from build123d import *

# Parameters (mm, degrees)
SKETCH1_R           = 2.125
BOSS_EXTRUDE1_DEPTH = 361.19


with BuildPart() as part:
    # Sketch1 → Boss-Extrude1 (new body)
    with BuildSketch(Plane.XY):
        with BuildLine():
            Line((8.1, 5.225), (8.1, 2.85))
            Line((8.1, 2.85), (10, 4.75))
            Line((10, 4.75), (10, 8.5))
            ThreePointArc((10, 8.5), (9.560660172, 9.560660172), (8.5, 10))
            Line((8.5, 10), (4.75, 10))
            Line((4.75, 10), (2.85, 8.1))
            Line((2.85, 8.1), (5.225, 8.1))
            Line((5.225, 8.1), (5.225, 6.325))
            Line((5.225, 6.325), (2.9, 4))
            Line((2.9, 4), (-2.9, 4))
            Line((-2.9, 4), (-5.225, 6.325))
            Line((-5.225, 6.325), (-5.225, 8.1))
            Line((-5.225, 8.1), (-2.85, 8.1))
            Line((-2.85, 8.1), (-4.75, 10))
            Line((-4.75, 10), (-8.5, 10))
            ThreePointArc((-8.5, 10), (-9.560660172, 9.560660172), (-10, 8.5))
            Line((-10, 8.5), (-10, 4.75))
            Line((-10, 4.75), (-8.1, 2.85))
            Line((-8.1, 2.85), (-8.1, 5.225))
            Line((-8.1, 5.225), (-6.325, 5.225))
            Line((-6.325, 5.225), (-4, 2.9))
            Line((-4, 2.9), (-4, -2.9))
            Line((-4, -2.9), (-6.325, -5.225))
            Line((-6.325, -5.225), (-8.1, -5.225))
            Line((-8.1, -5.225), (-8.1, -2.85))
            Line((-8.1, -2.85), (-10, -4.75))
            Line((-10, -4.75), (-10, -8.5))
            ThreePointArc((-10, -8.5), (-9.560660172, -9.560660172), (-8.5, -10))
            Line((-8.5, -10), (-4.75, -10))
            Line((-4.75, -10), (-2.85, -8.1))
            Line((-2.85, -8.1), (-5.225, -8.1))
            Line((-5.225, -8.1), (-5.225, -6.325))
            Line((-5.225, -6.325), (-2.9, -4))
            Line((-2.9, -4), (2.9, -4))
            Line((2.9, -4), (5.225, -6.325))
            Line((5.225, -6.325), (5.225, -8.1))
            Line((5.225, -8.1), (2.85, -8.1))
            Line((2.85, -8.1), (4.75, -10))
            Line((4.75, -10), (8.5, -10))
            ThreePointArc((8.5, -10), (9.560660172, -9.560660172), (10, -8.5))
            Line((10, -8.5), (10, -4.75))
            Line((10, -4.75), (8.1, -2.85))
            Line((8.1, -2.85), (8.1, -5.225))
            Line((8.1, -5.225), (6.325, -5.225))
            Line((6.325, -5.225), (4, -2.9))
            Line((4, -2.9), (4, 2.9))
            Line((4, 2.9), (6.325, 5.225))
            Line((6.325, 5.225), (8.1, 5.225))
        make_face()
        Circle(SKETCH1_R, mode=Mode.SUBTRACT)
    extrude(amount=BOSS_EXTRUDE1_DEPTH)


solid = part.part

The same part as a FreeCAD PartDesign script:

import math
import FreeCAD as App
import Part
import Sketcher

V = App.Vector
Q = App.Units.Quantity

doc = App.newDocument("Part")
body = doc.addObject("PartDesign::Body", "Body")

sketch1 = doc.addObject("Sketcher::SketchObject", "Sketch")
body.addObject(sketch1)
sketch1.AttachmentSupport = (doc.XY_Plane, [""])
sketch1.MapMode = "FlatFace"
sketch1.addGeometry(Part.LineSegment(V(8.1, 5.2, 0), V(8.1, 2.9, 0)), False)
sketch1.addGeometry(Part.LineSegment(V(8.1, 2.9, 0), V(10, 4.8, 0)), False)
sketch1.addGeometry(Part.LineSegment(V(10, 4.8, 0), V(10, 8.5, 0)), False)
sketch1.addGeometry(Part.ArcOfCircle(Part.Circle(V(8.5, 8.5, 0), V(0, 0, 1), 1.5), math.radians(0), math.radians(90)), False)
sketch1.addGeometry(Part.LineSegment(V(8.5, 10, 0), V(4.8, 10, 0)), False)
sketch1.addGeometry(Part.LineSegment(V(4.8, 10, 0), V(2.9, 8.1, 0)), False)
sketch1.addGeometry(Part.LineSegment(V(2.9, 8.1, 0), V(5.2, 8.1, 0)), False)
sketch1.addGeometry(Part.LineSegment(V(5.2, 8.1, 0), V(5.2, 6.3, 0)), False)
sketch1.addGeometry(Part.LineSegment(V(5.2, 6.3, 0), V(2.9, 4, 0)), False)
sketch1.addGeometry(Part.LineSegment(V(2.9, 4, 0), V(-2.9, 4, 0)), False)
sketch1.addGeometry(Part.LineSegment(V(-2.9, 4, 0), V(-5.2, 6.3, 0)), False)
sketch1.addGeometry(Part.LineSegment(V(-5.2, 6.3, 0), V(-5.2, 8.1, 0)), False)
sketch1.addGeometry(Part.LineSegment(V(-5.2, 8.1, 0), V(-2.9, 8.1, 0)), False)
sketch1.addGeometry(Part.LineSegment(V(-2.9, 8.1, 0), V(-4.8, 10, 0)), False)
sketch1.addGeometry(Part.LineSegment(V(-4.8, 10, 0), V(-8.5, 10, 0)), False)
sketch1.addGeometry(Part.ArcOfCircle(Part.Circle(V(-8.5, 8.5, 0), V(0, 0, 1), 1.5), math.radians(90), math.radians(180)), False)
sketch1.addGeometry(Part.LineSegment(V(-10, 8.5, 0), V(-10, 4.8, 0)), False)
sketch1.addGeometry(Part.LineSegment(V(-10, 4.8, 0), V(-8.1, 2.9, 0)), False)
sketch1.addGeometry(Part.LineSegment(V(-8.1, 2.9, 0), V(-8.1, 5.2, 0)), False)
sketch1.addGeometry(Part.LineSegment(V(-8.1, 5.2, 0), V(-6.3, 5.2, 0)), False)
sketch1.addGeometry(Part.LineSegment(V(-6.3, 5.2, 0), V(-4, 2.9, 0)), False)
sketch1.addGeometry(Part.LineSegment(V(-4, 2.9, 0), V(-4, -2.9, 0)), False)
sketch1.addGeometry(Part.LineSegment(V(-4, -2.9, 0), V(-6.3, -5.2, 0)), False)
sketch1.addGeometry(Part.LineSegment(V(-6.3, -5.2, 0), V(-8.1, -5.2, 0)), False)
sketch1.addGeometry(Part.LineSegment(V(-8.1, -5.2, 0), V(-8.1, -2.9, 0)), False)
sketch1.addGeometry(Part.LineSegment(V(-8.1, -2.9, 0), V(-10, -4.8, 0)), False)
sketch1.addGeometry(Part.LineSegment(V(-10, -4.8, 0), V(-10, -8.5, 0)), False)
sketch1.addGeometry(Part.ArcOfCircle(Part.Circle(V(-8.5, -8.5, 0), V(0, 0, 1), 1.5), math.radians(180), math.radians(270)), False)
sketch1.addGeometry(Part.LineSegment(V(-8.5, -10, 0), V(-4.8, -10, 0)), False)
sketch1.addGeometry(Part.LineSegment(V(-4.8, -10, 0), V(-2.9, -8.1, 0)), False)
sketch1.addGeometry(Part.LineSegment(V(-2.9, -8.1, 0), V(-5.2, -8.1, 0)), False)
sketch1.addGeometry(Part.LineSegment(V(-5.2, -8.1, 0), V(-5.2, -6.3, 0)), False)
sketch1.addGeometry(Part.LineSegment(V(-5.2, -6.3, 0), V(-2.9, -4, 0)), False)
sketch1.addGeometry(Part.LineSegment(V(-2.9, -4, 0), V(2.9, -4, 0)), False)
sketch1.addGeometry(Part.LineSegment(V(2.9, -4, 0), V(5.2, -6.3, 0)), False)
sketch1.addGeometry(Part.LineSegment(V(5.2, -6.3, 0), V(5.2, -8.1, 0)), False)
sketch1.addGeometry(Part.LineSegment(V(5.2, -8.1, 0), V(2.9, -8.1, 0)), False)
sketch1.addGeometry(Part.LineSegment(V(2.9, -8.1, 0), V(4.8, -10, 0)), False)
sketch1.addGeometry(Part.LineSegment(V(4.8, -10, 0), V(8.5, -10, 0)), False)
sketch1.addGeometry(Part.ArcOfCircle(Part.Circle(V(8.5, -8.5, 0), V(0, 0, 1), 1.5), math.radians(-90), math.radians(0)), False)
sketch1.addGeometry(Part.LineSegment(V(10, -8.5, 0), V(10, -4.8, 0)), False)
sketch1.addGeometry(Part.LineSegment(V(10, -4.8, 0), V(8.1, -2.9, 0)), False)
sketch1.addGeometry(Part.LineSegment(V(8.1, -2.9, 0), V(8.1, -5.2, 0)), False)
sketch1.addGeometry(Part.LineSegment(V(8.1, -5.2, 0), V(6.3, -5.2, 0)), False)
sketch1.addGeometry(Part.LineSegment(V(6.3, -5.2, 0), V(4, -2.9, 0)), False)
sketch1.addGeometry(Part.LineSegment(V(4, -2.9, 0), V(4, 2.9, 0)), False)
sketch1.addGeometry(Part.LineSegment(V(4, 2.9, 0), V(6.3, 5.2, 0)), False)
sketch1.addGeometry(Part.LineSegment(V(6.3, 5.2, 0), V(8.1, 5.2, 0)), False)
sketch1.addGeometry(Part.Circle(V(0, 0, 0), V(0, 0, 1), 2.1), False)
sketch1.addConstraint(Sketcher.Constraint("Coincident", 0, 2, 1, 1))
sketch1.addConstraint(Sketcher.Constraint("Coincident", 1, 2, 2, 1))
sketch1.addConstraint(Sketcher.Constraint("Tangent", 2, 2, 3, 1))
sketch1.addConstraint(Sketcher.Constraint("Tangent", 3, 2, 4, 1))
sketch1.addConstraint(Sketcher.Constraint("Coincident", 4, 2, 5, 1))
sketch1.addConstraint(Sketcher.Constraint("Coincident", 5, 2, 6, 1))
sketch1.addConstraint(Sketcher.Constraint("Coincident", 6, 2, 7, 1))
sketch1.addConstraint(Sketcher.Constraint("Coincident", 7, 2, 8, 1))
sketch1.addConstraint(Sketcher.Constraint("Coincident", 8, 2, 9, 1))
sketch1.addConstraint(Sketcher.Constraint("Coincident", 9, 2, 10, 1))
sketch1.addConstraint(Sketcher.Constraint("Coincident", 10, 2, 11, 1))
sketch1.addConstraint(Sketcher.Constraint("Coincident", 11, 2, 12, 1))
sketch1.addConstraint(Sketcher.Constraint("Coincident", 12, 2, 13, 1))
sketch1.addConstraint(Sketcher.Constraint("Coincident", 13, 2, 14, 1))
sketch1.addConstraint(Sketcher.Constraint("Tangent", 14, 2, 15, 1))
sketch1.addConstraint(Sketcher.Constraint("Tangent", 15, 2, 16, 1))
sketch1.addConstraint(Sketcher.Constraint("Coincident", 16, 2, 17, 1))
sketch1.addConstraint(Sketcher.Constraint("Coincident", 17, 2, 18, 1))
sketch1.addConstraint(Sketcher.Constraint("Coincident", 18, 2, 19, 1))
sketch1.addConstraint(Sketcher.Constraint("Coincident", 19, 2, 20, 1))
sketch1.addConstraint(Sketcher.Constraint("Coincident", 20, 2, 21, 1))
sketch1.addConstraint(Sketcher.Constraint("Coincident", 21, 2, 22, 1))
sketch1.addConstraint(Sketcher.Constraint("Coincident", 22, 2, 23, 1))
sketch1.addConstraint(Sketcher.Constraint("Coincident", 23, 2, 24, 1))
sketch1.addConstraint(Sketcher.Constraint("Coincident", 24, 2, 25, 1))
sketch1.addConstraint(Sketcher.Constraint("Coincident", 25, 2, 26, 1))
sketch1.addConstraint(Sketcher.Constraint("Tangent", 26, 2, 27, 1))
sketch1.addConstraint(Sketcher.Constraint("Tangent", 27, 2, 28, 1))
sketch1.addConstraint(Sketcher.Constraint("Coincident", 28, 2, 29, 1))
sketch1.addConstraint(Sketcher.Constraint("Coincident", 29, 2, 30, 1))
sketch1.addConstraint(Sketcher.Constraint("Coincident", 30, 2, 31, 1))
sketch1.addConstraint(Sketcher.Constraint("Coincident", 31, 2, 32, 1))
sketch1.addConstraint(Sketcher.Constraint("Coincident", 32, 2, 33, 1))
sketch1.addConstraint(Sketcher.Constraint("Coincident", 33, 2, 34, 1))
sketch1.addConstraint(Sketcher.Constraint("Coincident", 34, 2, 35, 1))
sketch1.addConstraint(Sketcher.Constraint("Coincident", 35, 2, 36, 1))
sketch1.addConstraint(Sketcher.Constraint("Coincident", 36, 2, 37, 1))
sketch1.addConstraint(Sketcher.Constraint("Coincident", 37, 2, 38, 1))
sketch1.addConstraint(Sketcher.Constraint("Tangent", 38, 2, 39, 1))
sketch1.addConstraint(Sketcher.Constraint("Tangent", 39, 2, 40, 1))
sketch1.addConstraint(Sketcher.Constraint("Coincident", 40, 2, 41, 1))
sketch1.addConstraint(Sketcher.Constraint("Coincident", 41, 2, 42, 1))
sketch1.addConstraint(Sketcher.Constraint("Coincident", 42, 2, 43, 1))
sketch1.addConstraint(Sketcher.Constraint("Coincident", 43, 2, 44, 1))
sketch1.addConstraint(Sketcher.Constraint("Coincident", 44, 2, 45, 1))
sketch1.addConstraint(Sketcher.Constraint("Coincident", 45, 2, 46, 1))
sketch1.addConstraint(Sketcher.Constraint("Coincident", 46, 2, 47, 1))
sketch1.addConstraint(Sketcher.Constraint("Coincident", 47, 2, 0, 1))
sketch1.addConstraint(Sketcher.Constraint("Vertical", 0))
sketch1.addConstraint(Sketcher.Constraint("Vertical", 2))
sketch1.addConstraint(Sketcher.Constraint("Horizontal", 4))
sketch1.addConstraint(Sketcher.Constraint("Horizontal", 6))
sketch1.addConstraint(Sketcher.Constraint("Vertical", 7))
sketch1.addConstraint(Sketcher.Constraint("Horizontal", 9))
sketch1.addConstraint(Sketcher.Constraint("Vertical", 11))
sketch1.addConstraint(Sketcher.Constraint("Horizontal", 12))
sketch1.addConstraint(Sketcher.Constraint("Horizontal", 14))
sketch1.addConstraint(Sketcher.Constraint("Vertical", 16))
sketch1.addConstraint(Sketcher.Constraint("Vertical", 18))
sketch1.addConstraint(Sketcher.Constraint("Horizontal", 19))
sketch1.addConstraint(Sketcher.Constraint("Vertical", 21))
sketch1.addConstraint(Sketcher.Constraint("Horizontal", 23))
sketch1.addConstraint(Sketcher.Constraint("Vertical", 24))
sketch1.addConstraint(Sketcher.Constraint("Vertical", 26))
sketch1.addConstraint(Sketcher.Constraint("Horizontal", 28))
sketch1.addConstraint(Sketcher.Constraint("Horizontal", 30))
sketch1.addConstraint(Sketcher.Constraint("Vertical", 31))
sketch1.addConstraint(Sketcher.Constraint("Horizontal", 33))
sketch1.addConstraint(Sketcher.Constraint("Vertical", 35))
sketch1.addConstraint(Sketcher.Constraint("Horizontal", 36))
sketch1.addConstraint(Sketcher.Constraint("Horizontal", 38))
sketch1.addConstraint(Sketcher.Constraint("Vertical", 40))
sketch1.addConstraint(Sketcher.Constraint("Vertical", 42))
sketch1.addConstraint(Sketcher.Constraint("Horizontal", 43))
sketch1.addConstraint(Sketcher.Constraint("Vertical", 45))
sketch1.addConstraint(Sketcher.Constraint("Horizontal", 47))
sketch1.addConstraint(Sketcher.Constraint("Coincident", 48, 3, -1, 1))
sketch1.addConstraint(Sketcher.Constraint("Equal", 3, 15))
sketch1.addConstraint(Sketcher.Constraint("Equal", 15, 27))
sketch1.addConstraint(Sketcher.Constraint("Equal", 27, 39))
sketch1.addConstraint(Sketcher.Constraint("Symmetric", 3, 3, 27, 3, -1, 1))
sketch1.addConstraint(Sketcher.Constraint("Symmetric", 15, 3, 39, 3, -1, 1))
sketch1.addConstraint(Sketcher.Constraint("Symmetric", 0, 2, 24, 2, -1, 1))
sketch1.addConstraint(Sketcher.Constraint("Symmetric", 5, 2, 29, 2, -1, 1))
sketch1.addConstraint(Sketcher.Constraint("Symmetric", 7, 2, 31, 2, -1, 1))
sketch1.addConstraint(Sketcher.Constraint("Symmetric", 8, 2, 32, 2, -1, 1))
sketch1.addConstraint(Sketcher.Constraint("Symmetric", 10, 2, 34, 2, -1, 1))
sketch1.addConstraint(Sketcher.Constraint("Symmetric", 12, 2, 36, 2, -1, 1))
sketch1.addConstraint(Sketcher.Constraint("Symmetric", 17, 2, 41, 2, -1, 1))
sketch1.addConstraint(Sketcher.Constraint("Symmetric", 19, 2, 43, 2, -1, 1))
sketch1.addConstraint(Sketcher.Constraint("Symmetric", 20, 2, 44, 2, -1, 1))
sketch1.addConstraint(Sketcher.Constraint("Symmetric", 22, 2, 46, 2, -1, 1))
sketch1.addConstraint(Sketcher.Constraint("Symmetric", 3, 3, 15, 3, -2))
sketch1.addConstraint(Sketcher.Constraint("Symmetric", 7, 2, 10, 2, -2))
sketch1.addConstraint(Sketcher.Constraint("Symmetric", 5, 2, 12, 2, -2))
sketch1.addConstraint(Sketcher.Constraint("Symmetric", 0, 2, 17, 2, -2))
sketch1.addConstraint(Sketcher.Constraint("Symmetric", 22, 2, 43, 2, -2))
sketch1.addConstraint(Sketcher.Constraint("Parallel", 1, 5))
sketch1.addConstraint(Sketcher.Constraint("Parallel", 5, 8))
sketch1.addConstraint(Sketcher.Constraint("Perpendicular", 8, 10))
sketch1.addConstraint(Sketcher.Constraint("Parallel", 10, 13))
sketch1.addConstraint(Sketcher.Constraint("Parallel", 13, 17))
sketch1.addConstraint(Sketcher.Constraint("Parallel", 17, 20))
sketch1.addConstraint(Sketcher.Constraint("Perpendicular", 20, 22))
sketch1.addConstraint(Sketcher.Constraint("Parallel", 22, 25))
sketch1.addConstraint(Sketcher.Constraint("Parallel", 25, 29))
sketch1.addConstraint(Sketcher.Constraint("Perpendicular", 32, 34))
sketch1.addConstraint(Sketcher.Constraint("Parallel", 34, 37))
sketch1.addConstraint(Sketcher.Constraint("Parallel", 37, 41))
sketch1.addConstraint(Sketcher.Constraint("Perpendicular", 44, 46))
sketch1.addConstraint(Sketcher.Constraint("Horizontal", 1, 2, 16, 2))
sketch1.addConstraint(Sketcher.Constraint("Equal", 36, 0))
sketch1.addConstraint(Sketcher.Constraint("Equal", 38, 2))
sketch1.addConstraint(Sketcher.Constraint("Equal", 47, 7))
sketch1.addConstraint(Sketcher.Constraint("Equal", 33, 21))
sketch1.addConstraint(Sketcher.Constraint("Equal", 1, 5))
sketch1.addConstraint(Sketcher.Constraint("Equal", 10, 20))
sketch1.addConstraint(Sketcher.Constraint("Radius", 3, Q("1.5 mm")))
sketch1.addConstraint(Sketcher.Constraint("Diameter", 48, Q("4.25 mm")))
sketch1.addConstraint(Sketcher.Constraint("DistanceX", 9, 2, 9, 1, Q("5.8 mm")))
sketch1.addConstraint(Sketcher.Constraint("DistanceX", -1, 1, 1, 2, Q("10 mm")))
sketch1.addConstraint(Sketcher.Constraint("DistanceY", -1, 1, 8, 2, Q("4 mm")))
sketch1.addConstraint(Sketcher.Constraint("DistanceX", 4, 2, 4, 1, Q("3.75 mm")))
sketch1.addConstraint(Sketcher.Constraint("DistanceX", -1, 1, 0, 2, Q("8.1 mm")))
sketch1.addConstraint(Sketcher.Constraint("DistanceX", 6, 1, 6, 2, Q("2.375 mm")))
pad1 = doc.addObject("PartDesign::Pad", "Pad")
body.addObject(pad1)
pad1.Profile = sketch1
pad1.Length = 361.19

doc.recompute()
